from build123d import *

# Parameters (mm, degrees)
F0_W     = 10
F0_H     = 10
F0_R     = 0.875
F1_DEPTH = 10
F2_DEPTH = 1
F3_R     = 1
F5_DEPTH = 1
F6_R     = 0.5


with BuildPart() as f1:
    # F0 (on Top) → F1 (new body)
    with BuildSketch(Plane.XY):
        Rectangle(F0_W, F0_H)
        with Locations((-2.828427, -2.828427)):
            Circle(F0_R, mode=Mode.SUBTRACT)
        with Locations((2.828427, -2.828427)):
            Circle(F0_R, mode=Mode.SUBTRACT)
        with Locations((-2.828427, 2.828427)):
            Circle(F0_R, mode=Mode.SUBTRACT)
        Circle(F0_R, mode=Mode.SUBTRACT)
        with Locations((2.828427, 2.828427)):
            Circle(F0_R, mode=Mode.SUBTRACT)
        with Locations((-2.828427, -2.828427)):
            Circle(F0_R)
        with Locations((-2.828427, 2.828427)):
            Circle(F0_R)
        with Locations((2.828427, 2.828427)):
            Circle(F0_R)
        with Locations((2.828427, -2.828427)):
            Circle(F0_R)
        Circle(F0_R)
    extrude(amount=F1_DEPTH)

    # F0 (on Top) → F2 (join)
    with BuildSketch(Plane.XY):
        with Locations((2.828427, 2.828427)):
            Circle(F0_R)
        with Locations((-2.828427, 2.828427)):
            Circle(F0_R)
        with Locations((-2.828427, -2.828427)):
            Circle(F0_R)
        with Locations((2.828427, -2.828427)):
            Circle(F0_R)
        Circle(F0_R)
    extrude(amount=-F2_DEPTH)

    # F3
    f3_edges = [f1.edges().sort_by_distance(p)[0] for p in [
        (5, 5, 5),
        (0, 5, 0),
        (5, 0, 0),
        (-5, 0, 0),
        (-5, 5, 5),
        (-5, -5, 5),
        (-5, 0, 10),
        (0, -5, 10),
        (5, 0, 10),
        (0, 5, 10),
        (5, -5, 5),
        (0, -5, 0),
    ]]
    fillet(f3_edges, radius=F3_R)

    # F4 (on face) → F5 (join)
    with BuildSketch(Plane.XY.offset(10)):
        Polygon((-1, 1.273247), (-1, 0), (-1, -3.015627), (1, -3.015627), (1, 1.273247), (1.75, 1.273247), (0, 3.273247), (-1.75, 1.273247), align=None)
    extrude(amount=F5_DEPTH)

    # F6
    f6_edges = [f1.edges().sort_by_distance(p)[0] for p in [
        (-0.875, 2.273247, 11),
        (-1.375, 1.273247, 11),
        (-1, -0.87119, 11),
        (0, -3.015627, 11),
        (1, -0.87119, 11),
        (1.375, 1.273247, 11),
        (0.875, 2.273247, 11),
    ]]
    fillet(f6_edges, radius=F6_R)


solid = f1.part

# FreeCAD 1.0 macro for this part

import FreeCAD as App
import Part
import Sketcher
from FreeCAD import Vector
Q = App.Units.Quantity


def edges_at(feature, points):
    """Names of the edges that pass closest to the given points."""
    edges = feature.Shape.Edges
    near = lambda p: min(range(len(edges)), key=lambda i: edges[i].distToShape(Part.Vertex(*p))[0])
    return sorted({f"Edge{near(p) + 1}" for p in points})


def add_polygon(sketch, points):
    """Adds a closed chain of lines whose ends are joined by coincident constraints."""
    first, n = sketch.GeometryCount, len(points)
    for a, b in zip(points, points[1:] + points[:1]):
        sketch.addGeometry(Part.LineSegment(App.Vector(*a, 0), App.Vector(*b, 0)), False)
    for i in range(n):
        sketch.addConstraint(Sketcher.Constraint("Coincident", first + i, 2, first + (i + 1) % n, 1))

doc = App.newDocument("Part")
params = doc.addObject("Spreadsheet::Sheet", "Params")
for row, (alias, value) in enumerate([
    ("sketch1_width", "10 mm"),
    ("pad1_length", "10 mm"),
    ("sketch2_diameter", "1.75 mm"),
    ("pad2_length", "1 mm"),
    ("fillet_radius", "1 mm"),
    ("sketch3_width", "2 mm"),
    ("sketch3_width2", "0.75 mm"),
    ("pad3_length", "1 mm"),
    ("fillet2_radius", "0.5 mm"),
], start=1):
    params.set(f"A{row}", alias)
    params.set(f"B{row}", "=" + value)
    params.setAlias(f"B{row}", alias)

body = doc.addObject("PartDesign::Body", "Body")

# Sketch on XY plane
sketch1 = doc.addObject("Sketcher::SketchObject", "Sketch")
body.addObject(sketch1)
sketch1.AttachmentSupport = (doc.XY_Plane, [""])
sketch1.MapMode = "FlatFace"
add_polygon(sketch1, [(-5, 5), (-5, -5), (5, -5), (5, 5)])  # lines 0-3
sketch1.addConstraint([
    Sketcher.Constraint("Vertical", 0),
    Sketcher.Constraint("Horizontal", 1),
    Sketcher.Constraint("Vertical", 2),
    Sketcher.Constraint("Horizontal", 3),
    Sketcher.Constraint("Symmetric", 0, 2, 2, 2, -1, 1),
    Sketcher.Constraint("Equal", 3, 0),
    Sketcher.Constraint("DistanceX", 1, 1, 1, 2, Q("10 mm")),
])
sketch1.setExpression("Constraints[10]", "Params.sketch1_width")
pad1 = doc.addObject("PartDesign::Pad", "Pad")
body.addObject(pad1)
pad1.Profile = sketch1
pad1.setExpression("Length", "Params.pad1_length")

# Sketch on XY plane
sketch2 = doc.addObject("Sketcher::SketchObject", "Sketch001")
body.addObject(sketch2)
sketch2.AttachmentSupport = (doc.XY_Plane, [""])
sketch2.MapMode = "FlatFace"
sketch2.addGeometry([
    Part.Circle(Vector(2.828427, 2.828427, 0), Vector(0, 0, 1), 0.875),  # 0
    Part.Circle(Vector(-2.828427, 2.828427, 0), Vector(0, 0, 1), 0.875),  # 1
    Part.Circle(Vector(-2.828427, -2.828427, 0), Vector(0, 0, 1), 0.875),  # 2
    Part.Circle(Vector(2.828427, -2.828427, 0), Vector(0, 0, 1), 0.875),  # 3
    Part.Circle(Vector(0, 0, 0), Vector(0, 0, 1), 0.875),  # 4
], False)
sketch2.addConstraint([
    Sketcher.Constraint("Coincident", 4, 3, -1, 1),
    Sketcher.Constraint("Equal", 0, 1),
    Sketcher.Constraint("Equal", 1, 2),
    Sketcher.Constraint("Equal", 2, 3),
    Sketcher.Constraint("Equal", 3, 4),
    Sketcher.Constraint("Symmetric", 0, 3, 2, 3, -1, 1),
    Sketcher.Constraint("Symmetric", 1, 3, 3, 3, -1, 1),
    Sketcher.Constraint("Symmetric", 0, 3, 1, 3, -2),
    Sketcher.Constraint("Diameter", 0, Q("1.75 mm")),
    Sketcher.Constraint("DistanceX", -1, 1, 0, 3, Q("2.828427 mm")),
    Sketcher.Constraint("DistanceY", -1, 1, 0, 3, Q("2.828427 mm")),
])
sketch2.setExpression("Constraints[8]", "Params.sketch2_diameter")
pad2 = doc.addObject("PartDesign::Pad", "Pad001")
body.addObject(pad2)
pad2.Profile = sketch2
pad2.setExpression("Length", "Params.pad2_length")
pad2.Reversed = True
doc.recompute()

fillet = doc.addObject("PartDesign::Fillet", "Fillet")
body.addObject(fillet)
fillet.Base = (pad2, edges_at(pad2, [
    (5, 5, 5),
    (0, 5, 0),
    (5, 0, 0),
    (-5, 0, 0),
    (-5, 5, 5),
    (-5, -5, 5),
    (-5, 0, 10),
    (0, -5, 10),
    (5, 0, 10),
    (0, 5, 10),
    (5, -5, 5),
    (0, -5, 0),
]))
fillet.setExpression("Radius", "Params.fillet_radius")

# Sketch on XY plane
sketch3 = doc.addObject("Sketcher::SketchObject", "Sketch002")
body.addObject(sketch3)
sketch3.AttachmentSupport = (doc.XY_Plane, [""])
sketch3.MapMode = "FlatFace"
sketch3.AttachmentOffset = App.Placement(Vector(0, 0, 10), App.Rotation())
add_polygon(sketch3, [(-1, 1.273247), (-1, -3.015627), (1, -3.015627), (1, 1.273247), (1.75, 1.273247), (0, 3.273247), (-1.75, 1.273247)])  # lines 0-6
sketch3.addConstraint([
    Sketcher.Constraint("Vertical", 0),
    Sketcher.Constraint("Horizontal", 1),
    Sketcher.Constraint("Vertical", 2),
    Sketcher.Constraint("Horizontal", 3),
    Sketcher.Constraint("Horizontal", 6),
    Sketcher.Constraint("Symmetric", 3, 2, 5, 2, -2),
    Sketcher.Constraint("PointOnObject", 4, 2, -2),
    Sketcher.Constraint("Equal", 3, 6),
    Sketcher.Constraint("DistanceX", 1, 1, 1, 2, Q("2 mm")),
    Sketcher.Constraint("DistanceY", 2, 2, 4, 2, Q("2 mm")),
    Sketcher.Constraint("DistanceX", 3, 1, 3, 2, Q("0.75 mm")),
    Sketcher.Constraint("DistanceY", 0, 2, 0, 1, Q("4.288874 mm")),
    Sketcher.Constraint("DistanceY", 0, 2, -1, 1, Q("3.015627 mm")),
])
sketch3.setExpression("Constraints[15]", "Params.sketch3_width")
sketch3.setExpression("Constraints[17]", "Params.sketch3_width2")
pad3 = doc.addObject("PartDesign::Pad", "Pad002")
body.addObject(pad3)
pad3.Profile = sketch3
pad3.setExpression("Length", "Params.pad3_length")
doc.recompute()

fillet2 = doc.addObject("PartDesign::Fillet", "Fillet001")
body.addObject(fillet2)
fillet2.Base = (pad3, edges_at(pad3, [
    (-0.875, 2.273, 11),
    (-1.375, 1.273, 11),
    (-1, -0.871, 11),
    (0, -3.016, 11),
    (1, -0.871, 11),
    (1.375, 1.273, 11),
    (0.875, 2.273, 11),
]))
fillet2.setExpression("Radius", "Params.fillet2_radius")

doc.recompute()
